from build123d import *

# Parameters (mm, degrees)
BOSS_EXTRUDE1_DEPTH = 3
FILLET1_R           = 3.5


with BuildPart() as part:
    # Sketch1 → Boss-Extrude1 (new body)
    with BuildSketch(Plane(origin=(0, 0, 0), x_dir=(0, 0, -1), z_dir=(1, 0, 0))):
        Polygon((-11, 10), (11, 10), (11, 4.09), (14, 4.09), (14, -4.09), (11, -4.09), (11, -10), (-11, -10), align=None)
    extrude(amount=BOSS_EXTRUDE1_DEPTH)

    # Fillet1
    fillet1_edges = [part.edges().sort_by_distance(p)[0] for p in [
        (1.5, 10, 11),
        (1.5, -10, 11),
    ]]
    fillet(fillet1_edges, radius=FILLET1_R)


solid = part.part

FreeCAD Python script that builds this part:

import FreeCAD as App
import Part
import Sketcher
from FreeCAD import Vector


def edges_at(feature, points):
    """Names of the edges that pass closest to the given points."""
    edges = feature.Shape.Edges
    near = lambda p: min(range(len(edges)), key=lambda i: edges[i].distToShape(Part.Vertex(*p))[0])
    return sorted({f"Edge{near(p) + 1}" for p in points})


def add_polygon(sketch, points):
    """Adds a closed chain of lines whose ends are joined by coincident constraints."""
    first, n = sketch.GeometryCount, len(points)
    for a, b in zip(points, points[1:] + points[:1]):
        sketch.addGeometry(Part.LineSegment(App.Vector(*a, 0), App.Vector(*b, 0)), False)
    for i in range(n):
        sketch.addConstraint(Sketcher.Constraint("Coincident", first + i, 2, first + (i + 1) % n, 1))

doc = App.newDocument("Part")
body = doc.addObject("PartDesign::Body", "Body")

# Sketch on YZ plane
sketch1 = body.newObject("Sketcher::SketchObject", "Sketch")
sketch1.AttachmentSupport = (doc.getObject("YZ_Plane"), [""])
sketch1.MapMode = "FlatFace"
add_polygon(sketch1, [(10, -11), (10, 11), (-10, 11), (-10, -11), (-4.09, -11), (-4.09, -14), (4.09, -14), (4.09, -11)])  # lines 0-7
sketch1.addConstraint(Sketcher.Constraint("Vertical", 0))
sketch1.addConstraint(Sketcher.Constraint("Horizontal", 1))
sketch1.addConstraint(Sketcher.Constraint("Vertical", 2))
sketch1.addConstraint(Sketcher.Constraint("Horizontal", 3))
sketch1.addConstraint(Sketcher.Constraint("Vertical", 4))
sketch1.addConstraint(Sketcher.Constraint("Horizontal", 5))
sketch1.addConstraint(Sketcher.Constraint("Vertical", 6))
sketch1.addConstraint(Sketcher.Constraint("Horizontal", 7))
sketch1.addConstraint(Sketcher.Constraint("Symmetric", 0, 2, 2, 2, -1, 1))
sketch1.addConstraint(Sketcher.Constraint("Symmetric", 3, 2, 6, 2, -2))
sketch1.addConstraint(Sketcher.Constraint("DistanceX", 1, 2, 1, 1, 20.0))
sketch1.addConstraint(Sketcher.Constraint("DistanceY", 0, 1, 0, 2, 22.0))
sketch1.addConstraint(Sketcher.Constraint("DistanceY", 4, 2, 4, 1, 3.0))
sketch1.addConstraint(Sketcher.Constraint("DistanceX", 3, 1, 3, 2, 5.91))
pad1 = body.newObject("PartDesign::Pad", "Pad")
pad1.Profile = sketch1
pad1.Length = 3
doc.recompute()

fillet = body.newObject("PartDesign::Fillet", "Fillet")
fillet.Base = (pad1, edges_at(pad1, [(1.5, 10, 11), (1.5, -10, 11)]))
fillet.Radius = 3.5

doc.recompute()
